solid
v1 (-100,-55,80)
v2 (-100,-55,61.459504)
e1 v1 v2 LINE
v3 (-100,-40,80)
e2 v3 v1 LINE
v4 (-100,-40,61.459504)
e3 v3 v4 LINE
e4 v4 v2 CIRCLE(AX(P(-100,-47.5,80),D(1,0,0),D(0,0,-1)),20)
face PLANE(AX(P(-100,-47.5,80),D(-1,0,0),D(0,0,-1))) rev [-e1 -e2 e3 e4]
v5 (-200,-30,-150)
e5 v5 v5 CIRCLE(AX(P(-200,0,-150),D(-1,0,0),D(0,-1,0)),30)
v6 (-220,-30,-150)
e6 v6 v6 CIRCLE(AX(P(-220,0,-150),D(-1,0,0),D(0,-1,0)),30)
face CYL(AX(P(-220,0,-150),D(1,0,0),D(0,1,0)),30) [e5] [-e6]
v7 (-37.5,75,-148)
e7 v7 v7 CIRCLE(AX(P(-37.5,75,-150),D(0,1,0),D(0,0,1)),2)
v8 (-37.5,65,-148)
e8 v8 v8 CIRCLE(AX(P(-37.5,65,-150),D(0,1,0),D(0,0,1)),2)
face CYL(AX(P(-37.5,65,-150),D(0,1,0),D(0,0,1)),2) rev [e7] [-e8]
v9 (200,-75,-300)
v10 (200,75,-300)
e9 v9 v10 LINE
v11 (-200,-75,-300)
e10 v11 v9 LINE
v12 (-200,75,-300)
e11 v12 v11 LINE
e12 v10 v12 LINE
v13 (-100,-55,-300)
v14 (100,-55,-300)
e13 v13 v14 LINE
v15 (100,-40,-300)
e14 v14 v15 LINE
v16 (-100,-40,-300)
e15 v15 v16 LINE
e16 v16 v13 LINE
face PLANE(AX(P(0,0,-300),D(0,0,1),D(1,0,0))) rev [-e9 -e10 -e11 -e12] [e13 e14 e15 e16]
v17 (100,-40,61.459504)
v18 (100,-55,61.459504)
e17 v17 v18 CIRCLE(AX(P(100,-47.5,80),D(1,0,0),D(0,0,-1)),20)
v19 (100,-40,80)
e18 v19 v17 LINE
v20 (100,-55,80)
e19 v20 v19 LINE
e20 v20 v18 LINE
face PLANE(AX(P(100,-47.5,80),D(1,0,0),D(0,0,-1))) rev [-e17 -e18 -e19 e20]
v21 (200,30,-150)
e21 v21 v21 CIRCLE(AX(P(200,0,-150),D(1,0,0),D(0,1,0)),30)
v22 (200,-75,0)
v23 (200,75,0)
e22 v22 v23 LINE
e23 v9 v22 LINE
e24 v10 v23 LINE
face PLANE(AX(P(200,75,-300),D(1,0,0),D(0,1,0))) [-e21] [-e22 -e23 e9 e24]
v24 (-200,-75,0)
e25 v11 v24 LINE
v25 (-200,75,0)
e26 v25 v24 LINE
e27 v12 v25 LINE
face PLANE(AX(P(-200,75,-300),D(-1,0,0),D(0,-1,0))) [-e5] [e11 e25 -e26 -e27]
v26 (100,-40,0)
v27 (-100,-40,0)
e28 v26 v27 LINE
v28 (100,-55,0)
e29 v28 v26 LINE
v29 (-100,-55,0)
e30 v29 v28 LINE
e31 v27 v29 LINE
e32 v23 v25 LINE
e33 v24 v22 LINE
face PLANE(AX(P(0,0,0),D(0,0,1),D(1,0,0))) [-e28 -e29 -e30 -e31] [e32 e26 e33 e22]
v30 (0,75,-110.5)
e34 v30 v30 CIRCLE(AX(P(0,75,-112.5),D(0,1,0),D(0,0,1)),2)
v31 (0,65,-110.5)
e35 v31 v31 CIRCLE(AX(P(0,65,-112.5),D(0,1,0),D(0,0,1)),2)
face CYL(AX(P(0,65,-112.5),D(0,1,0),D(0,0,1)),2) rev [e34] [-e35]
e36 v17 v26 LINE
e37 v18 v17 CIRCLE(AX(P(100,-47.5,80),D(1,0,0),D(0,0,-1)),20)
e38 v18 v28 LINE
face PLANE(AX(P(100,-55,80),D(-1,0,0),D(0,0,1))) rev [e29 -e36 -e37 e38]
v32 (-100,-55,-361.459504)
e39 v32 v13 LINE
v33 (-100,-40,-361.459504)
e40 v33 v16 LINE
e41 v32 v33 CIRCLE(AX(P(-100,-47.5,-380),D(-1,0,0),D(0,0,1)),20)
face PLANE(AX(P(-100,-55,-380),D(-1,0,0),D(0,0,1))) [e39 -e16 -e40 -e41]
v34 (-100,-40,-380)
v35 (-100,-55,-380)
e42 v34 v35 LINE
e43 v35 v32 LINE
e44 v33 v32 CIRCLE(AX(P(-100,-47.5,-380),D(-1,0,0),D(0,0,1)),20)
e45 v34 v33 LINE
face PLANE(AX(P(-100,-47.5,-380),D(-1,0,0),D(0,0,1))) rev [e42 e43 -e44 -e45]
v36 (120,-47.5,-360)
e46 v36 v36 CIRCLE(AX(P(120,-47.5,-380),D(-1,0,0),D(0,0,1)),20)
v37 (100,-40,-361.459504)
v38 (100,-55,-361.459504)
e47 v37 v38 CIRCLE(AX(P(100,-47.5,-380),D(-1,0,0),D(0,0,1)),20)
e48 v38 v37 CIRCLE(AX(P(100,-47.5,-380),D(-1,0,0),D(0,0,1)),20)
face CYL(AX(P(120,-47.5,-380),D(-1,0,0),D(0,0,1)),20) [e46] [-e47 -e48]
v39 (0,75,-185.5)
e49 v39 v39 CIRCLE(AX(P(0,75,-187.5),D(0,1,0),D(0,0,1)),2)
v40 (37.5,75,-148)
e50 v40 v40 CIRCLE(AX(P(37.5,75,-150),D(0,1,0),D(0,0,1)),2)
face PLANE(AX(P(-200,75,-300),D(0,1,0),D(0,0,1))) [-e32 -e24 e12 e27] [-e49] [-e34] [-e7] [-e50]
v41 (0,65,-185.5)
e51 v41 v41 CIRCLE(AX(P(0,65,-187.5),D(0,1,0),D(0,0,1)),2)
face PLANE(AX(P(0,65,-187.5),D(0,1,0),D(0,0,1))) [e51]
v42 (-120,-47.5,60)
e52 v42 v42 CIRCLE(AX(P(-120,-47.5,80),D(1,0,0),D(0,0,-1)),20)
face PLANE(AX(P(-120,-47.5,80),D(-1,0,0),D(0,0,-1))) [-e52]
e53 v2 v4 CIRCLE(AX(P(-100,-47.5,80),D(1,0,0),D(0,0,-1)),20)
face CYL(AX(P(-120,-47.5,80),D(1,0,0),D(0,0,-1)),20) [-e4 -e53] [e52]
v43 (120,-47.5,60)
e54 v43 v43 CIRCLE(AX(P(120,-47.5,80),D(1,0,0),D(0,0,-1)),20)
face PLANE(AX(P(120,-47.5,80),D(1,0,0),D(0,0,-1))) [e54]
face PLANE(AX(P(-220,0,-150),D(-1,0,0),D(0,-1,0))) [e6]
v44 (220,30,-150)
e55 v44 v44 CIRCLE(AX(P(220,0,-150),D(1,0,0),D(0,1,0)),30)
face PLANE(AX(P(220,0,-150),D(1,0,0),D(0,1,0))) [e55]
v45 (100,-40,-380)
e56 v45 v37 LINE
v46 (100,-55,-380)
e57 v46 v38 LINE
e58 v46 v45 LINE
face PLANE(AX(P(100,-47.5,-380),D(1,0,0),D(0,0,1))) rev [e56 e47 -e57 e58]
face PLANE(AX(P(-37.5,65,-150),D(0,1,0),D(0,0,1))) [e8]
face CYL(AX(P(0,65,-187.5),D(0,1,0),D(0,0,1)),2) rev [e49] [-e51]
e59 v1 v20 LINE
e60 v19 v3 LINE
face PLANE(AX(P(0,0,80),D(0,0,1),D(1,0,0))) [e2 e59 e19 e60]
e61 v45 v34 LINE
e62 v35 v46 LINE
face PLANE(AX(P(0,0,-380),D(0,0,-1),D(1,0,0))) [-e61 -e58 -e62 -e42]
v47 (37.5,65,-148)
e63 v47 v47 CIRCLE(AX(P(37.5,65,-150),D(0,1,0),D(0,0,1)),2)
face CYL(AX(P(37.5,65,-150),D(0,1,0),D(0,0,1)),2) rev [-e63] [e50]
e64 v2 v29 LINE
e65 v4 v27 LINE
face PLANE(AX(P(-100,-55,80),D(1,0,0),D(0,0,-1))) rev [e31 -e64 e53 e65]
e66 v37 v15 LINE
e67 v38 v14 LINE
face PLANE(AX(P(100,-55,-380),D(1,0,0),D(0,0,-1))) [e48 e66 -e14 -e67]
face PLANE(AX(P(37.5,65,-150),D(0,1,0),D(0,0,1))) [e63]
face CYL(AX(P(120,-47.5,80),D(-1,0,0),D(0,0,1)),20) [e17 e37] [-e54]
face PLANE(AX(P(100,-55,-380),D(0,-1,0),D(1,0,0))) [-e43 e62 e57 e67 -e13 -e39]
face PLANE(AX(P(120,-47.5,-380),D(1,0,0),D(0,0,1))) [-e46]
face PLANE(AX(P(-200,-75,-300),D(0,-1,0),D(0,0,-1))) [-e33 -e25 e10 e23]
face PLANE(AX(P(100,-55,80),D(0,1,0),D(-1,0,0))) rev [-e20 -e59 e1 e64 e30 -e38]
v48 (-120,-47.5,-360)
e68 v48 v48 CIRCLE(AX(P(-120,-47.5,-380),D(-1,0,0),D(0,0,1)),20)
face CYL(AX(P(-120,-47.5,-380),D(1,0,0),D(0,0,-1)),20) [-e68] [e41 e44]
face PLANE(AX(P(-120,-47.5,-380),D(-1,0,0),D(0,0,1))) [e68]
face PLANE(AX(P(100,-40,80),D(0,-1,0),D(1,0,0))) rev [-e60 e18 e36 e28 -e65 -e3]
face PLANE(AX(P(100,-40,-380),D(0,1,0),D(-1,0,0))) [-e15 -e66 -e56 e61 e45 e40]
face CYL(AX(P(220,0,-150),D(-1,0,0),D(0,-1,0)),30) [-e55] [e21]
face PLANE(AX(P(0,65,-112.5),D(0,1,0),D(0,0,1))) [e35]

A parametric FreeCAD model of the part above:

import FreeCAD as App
import Part
import Sketcher

V = App.Vector

doc = App.newDocument("Part")
body = doc.addObject("PartDesign::Body", "Body")

# Sketch on XY plane
sketch1 = body.newObject("Sketcher::SketchObject", "Sketch")
sketch1.AttachmentSupport = (doc.getObject("XY_Plane"), [""])
sketch1.MapMode = "FlatFace"
sketch1.addGeometry([
    Part.LineSegment(V(-200, 75, 0), V(-200, -75, 0)),
    Part.LineSegment(V(-200, -75, 0), V(200, -75, 0)),
    Part.LineSegment(V(200, -75, 0), V(200, 75, 0)),
    Part.LineSegment(V(200, 75, 0), V(-200, 75, 0)),
], False)
sketch1.addConstraint([
    Sketcher.Constraint("Coincident", 0, 2, 1, 1),
    Sketcher.Constraint("Coincident", 1, 2, 2, 1),
    Sketcher.Constraint("Coincident", 2, 2, 3, 1),
    Sketcher.Constraint("Coincident", 3, 2, 0, 1),
    Sketcher.Constraint("Vertical", 0),
    Sketcher.Constraint("Horizontal", 1),
    Sketcher.Constraint("Vertical", 2),
    Sketcher.Constraint("Horizontal", 3),
    Sketcher.Constraint("Symmetric", 0, 2, 2, 2, -1, 1),
    Sketcher.Constraint("DistanceX", 1, 1, 1, 2, 400.0),
    Sketcher.Constraint("DistanceY", 0, 2, 0, 1, 150.0),
])
pad1 = body.newObject("PartDesign::Pad", "Pad")
pad1.Profile = sketch1
pad1.Length = 300
pad1.Reversed = True

# Sketch on YZ plane
sketch2 = body.newObject("Sketcher::SketchObject", "Sketch001")
sketch2.AttachmentSupport = (doc.getObject("YZ_Plane"), [""])
sketch2.MapMode = "FlatFace"
sketch2.AttachmentOffset = App.Placement(V(0, 0, 200), App.Rotation())
sketch2.addGeometry(Part.Circle(V(0, -150, 0), V(0, 0, 1), 30), False)
sketch2.addConstraint([
    Sketcher.Constraint("PointOnObject", 0, 3, -2),
    Sketcher.Constraint("Diameter", 0, 60.0),
    Sketcher.Constraint("DistanceY", 0, 3, -1, 1, 150.0),
])
pad2 = body.newObject("PartDesign::Pad", "Pad001")
pad2.Profile = sketch2
pad2.Length = 20

# Sketch on XY plane
sketch3 = body.newObject("Sketcher::SketchObject", "Sketch002")
sketch3.AttachmentSupport = (doc.getObject("XY_Plane"), [""])
sketch3.MapMode = "FlatFace"
sketch3.addGeometry([
    Part.LineSegment(V(-100, -40, 0), V(-100, -55, 0)),
    Part.LineSegment(V(-100, -55, 0), V(100, -55, 0)),
    Part.LineSegment(V(100, -55, 0), V(100, -40, 0)),
    Part.LineSegment(V(100, -40, 0), V(-100, -40, 0)),
], False)
sketch3.addConstraint([
    Sketcher.Constraint("Coincident", 0, 2, 1, 1),
    Sketcher.Constraint("Coincident", 1, 2, 2, 1),
    Sketcher.Constraint("Coincident", 2, 2, 3, 1),
    Sketcher.Constraint("Coincident", 3, 2, 0, 1),
    Sketcher.Constraint("Vertical", 0),
    Sketcher.Constraint("Horizontal", 1),
    Sketcher.Constraint("Vertical", 2),
    Sketcher.Constraint("Horizontal", 3),
    Sketcher.Constraint("DistanceX", 1, 1, 1, 2, 200.0),
    Sketcher.Constraint("DistanceY", 0, 2, 0, 1, 15.0),
    Sketcher.Constraint("DistanceX", 0, 2, -1, 1, 100.0),
    Sketcher.Constraint("DistanceY", 0, 2, -1, 1, 55.0),
])
pad3 = body.newObject("PartDesign::Pad", "Pad002")
pad3.Profile = sketch3
pad3.Length = 80
doc.recompute()

datumplane = body.newObject("PartDesign::Plane", "DatumPlane")
datumplane.AttachmentSupport = (doc.getObject("XY_Plane"), [""])
datumplane.MapMode = "FlatFace"
datumplane.AttachmentOffset = App.Placement(V(0, 0, -150), App.Rotation())
mirrored = body.newObject("PartDesign::Mirrored", "Mirrored")
mirrored.Originals = [pad3]
mirrored.MirrorPlane = (datumplane, [""])
body.Tip = mirrored

# Sketch on YZ plane
sketch4 = body.newObject("Sketcher::SketchObject", "Sketch003")
sketch4.AttachmentSupport = (doc.getObject("YZ_Plane"), [""])
sketch4.MapMode = "FlatFace"
sketch4.AttachmentOffset = App.Placement(V(0, 0, 100), App.Rotation())
sketch4.addGeometry(Part.Circle(V(-47.5, 80, 0), V(0, 0, 1), 20), False)
sketch4.addConstraint([
    Sketcher.Constraint("Diameter", 0, 40.0),
    Sketcher.Constraint("DistanceY", -1, 1, 0, 3, 80.0),
    Sketcher.Constraint("DistanceX", 0, 3, -1, 1, 47.5),
])
pad4 = body.newObject("PartDesign::Pad", "Pad003")
pad4.Profile = sketch4
pad4.Length = 20
doc.recompute()

datumplane2 = body.newObject("PartDesign::Plane", "DatumPlane001")
datumplane2.AttachmentSupport = (doc.getObject("XY_Plane"), [""])
datumplane2.MapMode = "FlatFace"
datumplane2.AttachmentOffset = App.Placement(V(0, 0, -150), App.Rotation())
mirrored2 = body.newObject("PartDesign::Mirrored", "Mirrored001")
mirrored2.Originals = [pad4]
mirrored2.MirrorPlane = (datumplane2, [""])
body.Tip = mirrored2
doc.recompute()

mirrored3 = body.newObject("PartDesign::Mirrored", "Mirrored002")
mirrored3.Originals = [pad4]
mirrored3.MirrorPlane = (doc.getObject("YZ_Plane"), [""])
body.Tip = mirrored3

# Sketch on YZ plane
sketch5 = body.newObject("Sketcher::SketchObject", "Sketch004")
sketch5.AttachmentSupport = (doc.getObject("YZ_Plane"), [""])
sketch5.MapMode = "FlatFace"
sketch5.AttachmentOffset = App.Placement(V(0, 0, -100), App.Rotation())
sketch5.addGeometry(Part.Circle(V(-47.5, -380, 0), V(0, 0, 1), 20), False)
sketch5.addConstraint([
    Sketcher.Constraint("Diameter", 0, 40.0),
    Sketcher.Constraint("DistanceY", 0, 3, -1, 1, 380.0),
    Sketcher.Constraint("DistanceX", 0, 3, -1, 1, 47.5),
])
pad5 = body.newObject("PartDesign::Pad", "Pad004")
pad5.Profile = sketch5
pad5.Length = 20
pad5.Reversed = True

# Sketch on XZ plane
sketch6 = body.newObject("Sketcher::SketchObject", "Sketch005")
sketch6.AttachmentSupport = (doc.getObject("XZ_Plane"), [""])
sketch6.MapMode = "FlatFace"
sketch6.AttachmentOffset = App.Placement(V(0, 0, -75), App.Rotation())
sketch6.addGeometry([
    Part.Circle(V(0, -187.5, 0), V(0, 0, 1), 2),
    Part.Circle(V(37.5, -150, 0), V(0, 0, 1), 2),
    Part.Circle(V(0, -112.5, 0), V(0, 0, 1), 2),
    Part.Circle(V(-37.5, -150, 0), V(0, 0, 1), 2),
], False)
sketch6.addConstraint([
    Sketcher.Constraint("Equal", 0, 1),
    Sketcher.Constraint("Equal", 1, 2),
    Sketcher.Constraint("Equal", 2, 3),
    Sketcher.Constraint("Symmetric", 1, 3, 3, 3, -2),
    Sketcher.Constraint("PointOnObject", 0, 3, -2),
    Sketcher.Constraint("PointOnObject", 2, 3, -2),
    Sketcher.Constraint("Diameter", 0, 4.0),
    Sketcher.Constraint("DistanceY", 1, 3, -1, 1, 150.0),
    Sketcher.Constraint("DistanceY", 0, 3, 2, 3, 75.0),
    Sketcher.Constraint("DistanceX", 3, 3, 1, 3, 75.0),
    Sketcher.Constraint("DistanceY", 0, 3, -1, 1, 187.5),
])
pocket1 = body.newObject("PartDesign::Pocket", "Pocket")
pocket1.Profile = sketch6
pocket1.Length = 10
pocket1.Reversed = True

# Sketch on YZ plane
sketch7 = body.newObject("Sketcher::SketchObject", "Sketch006")
sketch7.AttachmentSupport = (doc.getObject("YZ_Plane"), [""])
sketch7.MapMode = "FlatFace"
sketch7.AttachmentOffset = App.Placement(V(0, 0, -220), App.Rotation())
sketch7.addGeometry(Part.Circle(V(0, -150, 0), V(0, 0, 1), 30), False)
sketch7.addConstraint([
    Sketcher.Constraint("PointOnObject", 0, 3, -2),
    Sketcher.Constraint("Diameter", 0, 60.0),
    Sketcher.Constraint("DistanceY", 0, 3, -1, 1, 150.0),
])
pad6 = body.newObject("PartDesign::Pad", "Pad005")
pad6.Profile = sketch7
pad6.Length = 20

doc.recompute()
